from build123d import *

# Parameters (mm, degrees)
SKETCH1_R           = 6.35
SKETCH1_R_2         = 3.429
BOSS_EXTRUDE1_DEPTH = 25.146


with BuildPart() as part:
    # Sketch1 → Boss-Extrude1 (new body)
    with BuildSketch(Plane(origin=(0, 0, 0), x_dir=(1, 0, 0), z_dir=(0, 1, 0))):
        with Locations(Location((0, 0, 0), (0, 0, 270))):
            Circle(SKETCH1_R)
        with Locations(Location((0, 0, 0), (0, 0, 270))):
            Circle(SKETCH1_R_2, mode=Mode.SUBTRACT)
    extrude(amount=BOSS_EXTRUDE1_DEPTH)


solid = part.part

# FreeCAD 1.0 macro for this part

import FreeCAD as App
import Part
import Sketcher
from FreeCAD import Vector
Q = App.Units.Quantity

doc = App.newDocument("Part")
body = doc.addObject("PartDesign::Body", "Body")

# Sketch on XZ plane
sketch1 = body.newObject("Sketcher::SketchObject", "Sketch")
sketch1.AttachmentSupport = (doc.getObject("XZ_Plane"), [""])
sketch1.MapMode = "FlatFace"
sketch1.addGeometry(Part.Circle(Vector(0, 0, 0), Vector(0, 0, 1), 6.3), False)
sketch1.addGeometry(Part.Circle(Vector(0, 0, 0), Vector(0, 0, 1), 3.4), False)
sketch1.addConstraint(Sketcher.Constraint("Coincident", 0, 3, -1, 1))
sketch1.addConstraint(Sketcher.Constraint("Coincident", 1, 3, -1, 1))
sketch1.addConstraint(Sketcher.Constraint("Diameter", 0, Q("0.5 in")))
sketch1.addConstraint(Sketcher.Constraint("Diameter", 1, Q("0.27 in")))
pad1 = body.newObject("PartDesign::Pad", "Pad")
pad1.Profile = sketch1
pad1.Length = Q("0.99 in")
pad1.Reversed = True

doc.recompute()
